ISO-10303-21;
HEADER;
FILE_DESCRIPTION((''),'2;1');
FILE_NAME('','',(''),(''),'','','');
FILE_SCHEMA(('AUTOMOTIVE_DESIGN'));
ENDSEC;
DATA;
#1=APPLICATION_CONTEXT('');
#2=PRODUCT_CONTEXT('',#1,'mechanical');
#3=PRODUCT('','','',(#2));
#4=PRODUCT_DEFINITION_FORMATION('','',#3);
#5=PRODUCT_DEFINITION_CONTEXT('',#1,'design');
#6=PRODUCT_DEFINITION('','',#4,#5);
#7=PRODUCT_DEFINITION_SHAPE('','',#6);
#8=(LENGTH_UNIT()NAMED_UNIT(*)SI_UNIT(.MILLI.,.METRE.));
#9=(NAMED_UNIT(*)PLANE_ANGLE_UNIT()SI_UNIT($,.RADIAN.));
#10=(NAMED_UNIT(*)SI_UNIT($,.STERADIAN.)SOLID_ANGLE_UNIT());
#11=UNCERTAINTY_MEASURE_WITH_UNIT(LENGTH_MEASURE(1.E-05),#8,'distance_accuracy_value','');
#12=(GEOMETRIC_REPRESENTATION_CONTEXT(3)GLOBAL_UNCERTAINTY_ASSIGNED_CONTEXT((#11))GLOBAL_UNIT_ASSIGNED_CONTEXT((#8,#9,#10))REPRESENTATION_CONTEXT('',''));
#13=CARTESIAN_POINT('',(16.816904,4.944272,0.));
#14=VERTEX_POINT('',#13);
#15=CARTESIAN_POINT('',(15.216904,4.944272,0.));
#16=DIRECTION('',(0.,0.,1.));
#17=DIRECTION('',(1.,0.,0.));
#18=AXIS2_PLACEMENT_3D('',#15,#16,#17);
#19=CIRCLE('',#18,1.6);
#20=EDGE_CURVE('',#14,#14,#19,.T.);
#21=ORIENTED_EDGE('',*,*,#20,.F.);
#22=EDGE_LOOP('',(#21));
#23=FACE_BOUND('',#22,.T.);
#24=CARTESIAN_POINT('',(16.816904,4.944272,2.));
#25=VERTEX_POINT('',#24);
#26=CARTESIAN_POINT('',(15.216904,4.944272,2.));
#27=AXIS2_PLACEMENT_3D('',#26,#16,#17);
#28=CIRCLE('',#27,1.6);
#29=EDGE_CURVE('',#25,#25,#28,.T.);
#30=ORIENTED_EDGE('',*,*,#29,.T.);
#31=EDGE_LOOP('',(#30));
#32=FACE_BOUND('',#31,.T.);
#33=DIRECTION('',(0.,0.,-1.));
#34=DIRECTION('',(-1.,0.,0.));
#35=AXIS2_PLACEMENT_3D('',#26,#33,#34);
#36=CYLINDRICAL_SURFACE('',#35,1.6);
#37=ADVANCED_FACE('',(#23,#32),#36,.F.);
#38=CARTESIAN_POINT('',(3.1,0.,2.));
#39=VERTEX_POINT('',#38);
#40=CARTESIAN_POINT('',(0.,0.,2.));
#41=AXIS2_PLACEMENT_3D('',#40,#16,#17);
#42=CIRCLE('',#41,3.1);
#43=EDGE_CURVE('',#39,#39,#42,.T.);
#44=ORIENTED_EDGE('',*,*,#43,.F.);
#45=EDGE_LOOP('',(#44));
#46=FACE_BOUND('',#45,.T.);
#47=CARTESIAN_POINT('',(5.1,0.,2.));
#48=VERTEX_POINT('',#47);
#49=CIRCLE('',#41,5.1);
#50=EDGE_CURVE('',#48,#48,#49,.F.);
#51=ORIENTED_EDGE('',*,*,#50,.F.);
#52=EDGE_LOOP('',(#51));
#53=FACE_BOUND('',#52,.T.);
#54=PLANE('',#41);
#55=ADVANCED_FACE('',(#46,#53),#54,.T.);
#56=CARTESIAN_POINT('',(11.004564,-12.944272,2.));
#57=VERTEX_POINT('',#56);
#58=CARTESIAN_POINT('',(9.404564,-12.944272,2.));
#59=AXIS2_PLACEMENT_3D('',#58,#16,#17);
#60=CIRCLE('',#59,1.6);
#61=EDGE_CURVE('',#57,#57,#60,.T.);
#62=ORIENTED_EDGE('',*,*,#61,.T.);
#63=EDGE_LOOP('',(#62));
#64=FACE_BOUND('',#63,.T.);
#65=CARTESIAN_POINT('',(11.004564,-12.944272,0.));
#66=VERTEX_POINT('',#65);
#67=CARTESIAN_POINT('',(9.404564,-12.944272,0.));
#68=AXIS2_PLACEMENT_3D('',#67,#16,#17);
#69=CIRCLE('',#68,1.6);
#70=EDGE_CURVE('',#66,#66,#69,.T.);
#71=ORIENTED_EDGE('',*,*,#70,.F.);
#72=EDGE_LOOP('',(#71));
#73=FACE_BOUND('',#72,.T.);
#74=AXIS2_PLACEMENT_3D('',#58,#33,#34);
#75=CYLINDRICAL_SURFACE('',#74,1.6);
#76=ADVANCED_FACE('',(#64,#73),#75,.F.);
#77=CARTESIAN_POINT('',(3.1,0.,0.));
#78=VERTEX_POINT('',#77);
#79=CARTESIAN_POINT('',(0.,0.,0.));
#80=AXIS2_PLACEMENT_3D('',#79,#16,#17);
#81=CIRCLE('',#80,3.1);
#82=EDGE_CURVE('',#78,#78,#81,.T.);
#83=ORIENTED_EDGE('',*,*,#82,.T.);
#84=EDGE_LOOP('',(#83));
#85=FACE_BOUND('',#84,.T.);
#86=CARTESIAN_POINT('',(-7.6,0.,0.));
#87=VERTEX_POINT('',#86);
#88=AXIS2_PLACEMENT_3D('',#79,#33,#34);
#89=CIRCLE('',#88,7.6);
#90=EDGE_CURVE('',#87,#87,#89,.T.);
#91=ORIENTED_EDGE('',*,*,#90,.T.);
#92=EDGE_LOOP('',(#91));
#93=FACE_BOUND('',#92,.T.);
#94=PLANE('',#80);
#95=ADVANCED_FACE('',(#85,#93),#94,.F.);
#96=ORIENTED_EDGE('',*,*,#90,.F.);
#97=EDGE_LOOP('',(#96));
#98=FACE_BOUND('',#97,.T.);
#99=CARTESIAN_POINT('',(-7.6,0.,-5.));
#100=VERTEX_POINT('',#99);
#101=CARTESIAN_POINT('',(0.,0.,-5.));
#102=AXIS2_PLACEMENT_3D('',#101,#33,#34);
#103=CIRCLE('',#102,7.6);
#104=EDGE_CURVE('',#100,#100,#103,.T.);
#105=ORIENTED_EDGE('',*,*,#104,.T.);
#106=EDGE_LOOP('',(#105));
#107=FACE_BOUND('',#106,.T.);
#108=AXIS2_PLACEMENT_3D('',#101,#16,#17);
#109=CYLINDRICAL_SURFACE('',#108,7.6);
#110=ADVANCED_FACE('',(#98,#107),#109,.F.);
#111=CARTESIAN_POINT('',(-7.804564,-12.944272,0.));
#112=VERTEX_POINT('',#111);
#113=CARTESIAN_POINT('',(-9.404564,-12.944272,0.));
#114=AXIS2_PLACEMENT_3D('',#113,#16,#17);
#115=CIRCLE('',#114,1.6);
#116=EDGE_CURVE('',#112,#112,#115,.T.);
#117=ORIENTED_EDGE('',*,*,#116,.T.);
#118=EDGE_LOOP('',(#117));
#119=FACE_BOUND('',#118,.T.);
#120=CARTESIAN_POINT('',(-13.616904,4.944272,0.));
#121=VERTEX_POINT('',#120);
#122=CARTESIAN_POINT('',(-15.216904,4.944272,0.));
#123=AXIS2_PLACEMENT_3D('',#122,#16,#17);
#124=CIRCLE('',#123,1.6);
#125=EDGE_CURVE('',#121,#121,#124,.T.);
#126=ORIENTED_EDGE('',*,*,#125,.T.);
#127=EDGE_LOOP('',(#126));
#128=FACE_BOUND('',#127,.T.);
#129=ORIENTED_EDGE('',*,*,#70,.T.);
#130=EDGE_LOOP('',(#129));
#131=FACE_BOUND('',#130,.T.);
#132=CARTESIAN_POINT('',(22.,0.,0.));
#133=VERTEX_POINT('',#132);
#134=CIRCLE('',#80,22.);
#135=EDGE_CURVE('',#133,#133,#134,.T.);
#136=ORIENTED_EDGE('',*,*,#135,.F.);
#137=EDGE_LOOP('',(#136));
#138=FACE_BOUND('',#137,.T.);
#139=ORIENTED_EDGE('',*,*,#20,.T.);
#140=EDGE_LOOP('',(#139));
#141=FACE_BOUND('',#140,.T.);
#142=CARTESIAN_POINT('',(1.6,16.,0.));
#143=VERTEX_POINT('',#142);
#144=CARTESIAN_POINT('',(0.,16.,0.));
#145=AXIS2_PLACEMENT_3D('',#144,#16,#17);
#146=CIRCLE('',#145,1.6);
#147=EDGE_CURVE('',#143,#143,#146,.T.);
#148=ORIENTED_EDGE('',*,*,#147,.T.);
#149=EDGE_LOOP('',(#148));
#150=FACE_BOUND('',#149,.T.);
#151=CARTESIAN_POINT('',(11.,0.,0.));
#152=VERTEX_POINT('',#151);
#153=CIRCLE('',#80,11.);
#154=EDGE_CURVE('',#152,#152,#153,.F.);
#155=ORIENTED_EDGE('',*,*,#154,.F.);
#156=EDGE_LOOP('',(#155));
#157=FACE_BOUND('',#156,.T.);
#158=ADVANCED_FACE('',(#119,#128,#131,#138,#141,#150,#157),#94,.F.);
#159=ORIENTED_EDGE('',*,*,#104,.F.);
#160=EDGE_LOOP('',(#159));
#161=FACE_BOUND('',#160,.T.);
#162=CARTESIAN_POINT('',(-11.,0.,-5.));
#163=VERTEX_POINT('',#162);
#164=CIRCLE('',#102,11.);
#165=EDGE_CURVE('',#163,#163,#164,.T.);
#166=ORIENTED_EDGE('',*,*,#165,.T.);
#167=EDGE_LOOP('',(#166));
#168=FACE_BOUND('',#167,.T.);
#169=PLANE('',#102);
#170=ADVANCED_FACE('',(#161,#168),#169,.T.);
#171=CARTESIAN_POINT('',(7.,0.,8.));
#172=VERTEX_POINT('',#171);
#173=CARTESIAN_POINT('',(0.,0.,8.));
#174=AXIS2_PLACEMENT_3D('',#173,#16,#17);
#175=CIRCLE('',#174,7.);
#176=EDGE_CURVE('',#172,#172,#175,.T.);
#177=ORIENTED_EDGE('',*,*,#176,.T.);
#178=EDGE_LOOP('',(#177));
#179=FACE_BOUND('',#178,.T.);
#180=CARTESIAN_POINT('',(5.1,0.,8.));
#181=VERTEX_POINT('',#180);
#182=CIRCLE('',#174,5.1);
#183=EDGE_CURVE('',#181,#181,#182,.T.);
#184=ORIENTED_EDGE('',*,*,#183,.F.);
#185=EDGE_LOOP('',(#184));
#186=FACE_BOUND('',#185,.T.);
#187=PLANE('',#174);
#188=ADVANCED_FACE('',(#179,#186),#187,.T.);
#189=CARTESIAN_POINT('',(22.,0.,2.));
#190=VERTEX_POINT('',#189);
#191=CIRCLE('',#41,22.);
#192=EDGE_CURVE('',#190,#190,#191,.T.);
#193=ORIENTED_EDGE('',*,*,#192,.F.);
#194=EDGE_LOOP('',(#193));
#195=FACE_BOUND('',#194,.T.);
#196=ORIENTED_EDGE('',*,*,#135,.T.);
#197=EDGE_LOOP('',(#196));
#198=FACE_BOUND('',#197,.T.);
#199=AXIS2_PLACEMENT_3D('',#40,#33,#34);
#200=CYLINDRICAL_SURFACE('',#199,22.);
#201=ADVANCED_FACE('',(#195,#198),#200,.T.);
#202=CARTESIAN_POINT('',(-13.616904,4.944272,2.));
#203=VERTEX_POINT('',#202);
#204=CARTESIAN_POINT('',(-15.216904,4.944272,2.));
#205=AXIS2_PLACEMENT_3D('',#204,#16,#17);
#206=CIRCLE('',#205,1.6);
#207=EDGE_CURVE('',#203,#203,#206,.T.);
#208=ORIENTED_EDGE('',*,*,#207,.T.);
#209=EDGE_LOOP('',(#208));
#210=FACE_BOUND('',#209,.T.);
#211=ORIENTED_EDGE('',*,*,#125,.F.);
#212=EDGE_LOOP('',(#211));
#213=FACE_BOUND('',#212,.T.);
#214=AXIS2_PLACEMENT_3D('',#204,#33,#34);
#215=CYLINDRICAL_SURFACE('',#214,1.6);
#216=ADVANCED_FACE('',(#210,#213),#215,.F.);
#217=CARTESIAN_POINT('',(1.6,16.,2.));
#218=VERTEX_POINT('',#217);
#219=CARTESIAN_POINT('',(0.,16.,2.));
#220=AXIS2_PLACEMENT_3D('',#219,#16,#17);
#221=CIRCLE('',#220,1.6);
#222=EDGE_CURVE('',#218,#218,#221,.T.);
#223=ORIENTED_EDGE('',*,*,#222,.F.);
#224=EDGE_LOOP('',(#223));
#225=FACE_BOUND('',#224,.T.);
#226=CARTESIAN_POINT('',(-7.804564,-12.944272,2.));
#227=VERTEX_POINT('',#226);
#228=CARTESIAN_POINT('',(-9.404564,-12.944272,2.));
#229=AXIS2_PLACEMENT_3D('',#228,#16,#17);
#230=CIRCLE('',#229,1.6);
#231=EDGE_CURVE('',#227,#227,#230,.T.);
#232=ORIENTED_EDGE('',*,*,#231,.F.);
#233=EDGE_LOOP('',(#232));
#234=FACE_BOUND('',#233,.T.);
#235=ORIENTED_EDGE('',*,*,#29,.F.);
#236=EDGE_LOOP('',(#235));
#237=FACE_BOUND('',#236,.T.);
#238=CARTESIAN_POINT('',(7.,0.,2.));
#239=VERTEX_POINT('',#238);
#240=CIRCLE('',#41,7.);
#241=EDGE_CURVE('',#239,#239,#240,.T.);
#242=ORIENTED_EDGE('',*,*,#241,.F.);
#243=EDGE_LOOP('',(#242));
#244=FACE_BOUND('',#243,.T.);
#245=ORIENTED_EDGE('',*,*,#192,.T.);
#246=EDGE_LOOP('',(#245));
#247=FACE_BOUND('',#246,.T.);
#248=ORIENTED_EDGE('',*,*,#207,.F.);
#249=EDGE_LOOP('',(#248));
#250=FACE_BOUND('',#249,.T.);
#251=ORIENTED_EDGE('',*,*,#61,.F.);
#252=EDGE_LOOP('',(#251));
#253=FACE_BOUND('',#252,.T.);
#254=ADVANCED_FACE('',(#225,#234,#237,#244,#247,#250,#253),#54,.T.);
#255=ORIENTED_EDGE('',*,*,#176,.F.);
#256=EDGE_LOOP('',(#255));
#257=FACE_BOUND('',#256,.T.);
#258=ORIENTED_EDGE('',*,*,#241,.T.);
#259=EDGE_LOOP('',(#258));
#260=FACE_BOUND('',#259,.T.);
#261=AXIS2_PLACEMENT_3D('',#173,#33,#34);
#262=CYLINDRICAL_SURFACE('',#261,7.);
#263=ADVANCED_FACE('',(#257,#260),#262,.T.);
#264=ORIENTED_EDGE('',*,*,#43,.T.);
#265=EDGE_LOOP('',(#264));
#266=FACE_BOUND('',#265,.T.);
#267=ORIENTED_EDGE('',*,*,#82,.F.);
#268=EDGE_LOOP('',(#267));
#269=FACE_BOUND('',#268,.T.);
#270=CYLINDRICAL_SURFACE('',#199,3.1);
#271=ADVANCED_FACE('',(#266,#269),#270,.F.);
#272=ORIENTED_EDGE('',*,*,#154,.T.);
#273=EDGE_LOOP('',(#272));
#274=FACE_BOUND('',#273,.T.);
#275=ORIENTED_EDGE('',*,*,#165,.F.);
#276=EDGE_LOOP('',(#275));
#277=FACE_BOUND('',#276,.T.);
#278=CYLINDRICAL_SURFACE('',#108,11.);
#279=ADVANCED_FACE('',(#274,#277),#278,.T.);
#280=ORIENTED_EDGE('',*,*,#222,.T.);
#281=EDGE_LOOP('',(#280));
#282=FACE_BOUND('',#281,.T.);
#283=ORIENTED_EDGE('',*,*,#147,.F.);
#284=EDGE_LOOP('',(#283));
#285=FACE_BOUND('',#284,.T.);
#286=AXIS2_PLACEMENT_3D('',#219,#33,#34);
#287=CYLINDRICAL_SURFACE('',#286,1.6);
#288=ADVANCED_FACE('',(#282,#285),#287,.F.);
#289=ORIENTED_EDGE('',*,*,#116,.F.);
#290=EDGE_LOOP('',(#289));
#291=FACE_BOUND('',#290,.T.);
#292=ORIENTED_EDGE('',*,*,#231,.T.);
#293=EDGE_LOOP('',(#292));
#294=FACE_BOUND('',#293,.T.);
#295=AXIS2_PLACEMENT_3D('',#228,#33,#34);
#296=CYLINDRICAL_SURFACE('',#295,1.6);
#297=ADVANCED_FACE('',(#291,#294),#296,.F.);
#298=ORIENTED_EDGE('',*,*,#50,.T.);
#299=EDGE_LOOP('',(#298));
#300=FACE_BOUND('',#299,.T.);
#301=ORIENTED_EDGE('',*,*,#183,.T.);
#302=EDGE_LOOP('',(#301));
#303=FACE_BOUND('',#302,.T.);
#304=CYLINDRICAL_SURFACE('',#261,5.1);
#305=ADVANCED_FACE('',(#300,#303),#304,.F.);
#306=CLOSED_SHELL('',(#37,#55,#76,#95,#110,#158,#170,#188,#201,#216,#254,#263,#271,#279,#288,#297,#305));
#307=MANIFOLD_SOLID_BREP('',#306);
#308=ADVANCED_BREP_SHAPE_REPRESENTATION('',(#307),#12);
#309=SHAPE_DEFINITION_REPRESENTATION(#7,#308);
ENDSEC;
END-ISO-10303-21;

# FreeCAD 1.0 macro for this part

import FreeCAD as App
import Part
import Sketcher

V = App.Vector

doc = App.newDocument("Part")
body = doc.addObject("PartDesign::Body", "Body")

# Sketch on XY plane
sketch1 = body.newObject("Sketcher::SketchObject", "Sketch")
sketch1.AttachmentSupport = (doc.getObject("XY_Plane"), [""])
sketch1.MapMode = "FlatFace"
sketch1.addGeometry(Part.Circle(V(0, 0, 0), V(0, 0, 1), 22), False)
sketch1.addGeometry(Part.Circle(V(-9.404564, -12.944272, 0), V(0, 0, 1), 1.6), False)
sketch1.addGeometry(Part.Circle(V(0, 0, 0), V(0, 0, 1), 3.1), False)
sketch1.addGeometry(Part.Circle(V(9.404564, -12.944272, 0), V(0, 0, 1), 1.6), False)
sketch1.addGeometry(Part.Circle(V(-15.216904, 4.944272, 0), V(0, 0, 1), 1.6), False)
sketch1.addGeometry(Part.Circle(V(0, 16, 0), V(0, 0, 1), 1.6), False)
sketch1.addGeometry(Part.Circle(V(15.216904, 4.944272, 0), V(0, 0, 1), 1.6), False)
sketch1.addConstraint(Sketcher.Constraint("Coincident", 0, 3, -1, 1))
sketch1.addConstraint(Sketcher.Constraint("Coincident", 2, 3, -1, 1))
sketch1.addConstraint(Sketcher.Constraint("Equal", 1, 3))
sketch1.addConstraint(Sketcher.Constraint("Equal", 3, 4))
sketch1.addConstraint(Sketcher.Constraint("Equal", 4, 5))
sketch1.addConstraint(Sketcher.Constraint("Equal", 5, 6))
sketch1.addConstraint(Sketcher.Constraint("Symmetric", 1, 3, 3, 3, -2))
sketch1.addConstraint(Sketcher.Constraint("Symmetric", 4, 3, 6, 3, -2))
sketch1.addConstraint(Sketcher.Constraint("PointOnObject", 5, 3, -2))
sketch1.addConstraint(Sketcher.Constraint("Diameter", 0, 44.0))
sketch1.addConstraint(Sketcher.Constraint("Diameter", 1, 3.2))
sketch1.addConstraint(Sketcher.Constraint("Diameter", 2, 6.2))
sketch1.addConstraint(Sketcher.Constraint("DistanceY", -1, 1, 5, 3, 16.0))
sketch1.addConstraint(Sketcher.Constraint("DistanceY", 1, 3, -1, 1, 12.944272))
sketch1.addConstraint(Sketcher.Constraint("DistanceY", -1, 1, 4, 3, 4.944272))
sketch1.addConstraint(Sketcher.Constraint("DistanceX", 1, 3, 3, 3, 18.809128))
sketch1.addConstraint(Sketcher.Constraint("DistanceX", 4, 3, 1, 3, 5.81234))
pad1 = body.newObject("PartDesign::Pad", "Pad")
pad1.Profile = sketch1
pad1.Length = 2

# Sketch on XY plane
sketch2 = body.newObject("Sketcher::SketchObject", "Sketch001")
sketch2.AttachmentSupport = (doc.getObject("XY_Plane"), [""])
sketch2.MapMode = "FlatFace"
sketch2.addGeometry(Part.Circle(V(0, 0, 0), V(0, 0, 1), 11), False)
sketch2.addGeometry(Part.Circle(V(0, 0, 0), V(0, 0, 1), 7.6), False)
sketch2.addConstraint(Sketcher.Constraint("Coincident", 0, 3, -1, 1))
sketch2.addConstraint(Sketcher.Constraint("Coincident", 1, 3, -1, 1))
sketch2.addConstraint(Sketcher.Constraint("Diameter", 0, 22.0))
sketch2.addConstraint(Sketcher.Constraint("Diameter", 1, 15.2))
pad2 = body.newObject("PartDesign::Pad", "Pad001")
pad2.Profile = sketch2
pad2.Length = 5
pad2.Reversed = True

# Sketch on XY plane
sketch3 = body.newObject("Sketcher::SketchObject", "Sketch002")
sketch3.AttachmentSupport = (doc.getObject("XY_Plane"), [""])
sketch3.MapMode = "FlatFace"
sketch3.AttachmentOffset = App.Placement(V(0, 0, 2), App.Rotation())
sketch3.addGeometry(Part.Circle(V(0, 0, 0), V(0, 0, 1), 7), False)
sketch3.addGeometry(Part.Circle(V(0, 0, 0), V(0, 0, 1), 5.1), False)
sketch3.addConstraint(Sketcher.Constraint("Coincident", 0, 3, -1, 1))
sketch3.addConstraint(Sketcher.Constraint("Coincident", 1, 3, -1, 1))
sketch3.addConstraint(Sketcher.Constraint("Diameter", 0, 14.0))
sketch3.addConstraint(Sketcher.Constraint("Diameter", 1, 10.2))
pad3 = body.newObject("PartDesign::Pad", "Pad002")
pad3.Profile = sketch3
pad3.Length = 6

doc.recompute()
